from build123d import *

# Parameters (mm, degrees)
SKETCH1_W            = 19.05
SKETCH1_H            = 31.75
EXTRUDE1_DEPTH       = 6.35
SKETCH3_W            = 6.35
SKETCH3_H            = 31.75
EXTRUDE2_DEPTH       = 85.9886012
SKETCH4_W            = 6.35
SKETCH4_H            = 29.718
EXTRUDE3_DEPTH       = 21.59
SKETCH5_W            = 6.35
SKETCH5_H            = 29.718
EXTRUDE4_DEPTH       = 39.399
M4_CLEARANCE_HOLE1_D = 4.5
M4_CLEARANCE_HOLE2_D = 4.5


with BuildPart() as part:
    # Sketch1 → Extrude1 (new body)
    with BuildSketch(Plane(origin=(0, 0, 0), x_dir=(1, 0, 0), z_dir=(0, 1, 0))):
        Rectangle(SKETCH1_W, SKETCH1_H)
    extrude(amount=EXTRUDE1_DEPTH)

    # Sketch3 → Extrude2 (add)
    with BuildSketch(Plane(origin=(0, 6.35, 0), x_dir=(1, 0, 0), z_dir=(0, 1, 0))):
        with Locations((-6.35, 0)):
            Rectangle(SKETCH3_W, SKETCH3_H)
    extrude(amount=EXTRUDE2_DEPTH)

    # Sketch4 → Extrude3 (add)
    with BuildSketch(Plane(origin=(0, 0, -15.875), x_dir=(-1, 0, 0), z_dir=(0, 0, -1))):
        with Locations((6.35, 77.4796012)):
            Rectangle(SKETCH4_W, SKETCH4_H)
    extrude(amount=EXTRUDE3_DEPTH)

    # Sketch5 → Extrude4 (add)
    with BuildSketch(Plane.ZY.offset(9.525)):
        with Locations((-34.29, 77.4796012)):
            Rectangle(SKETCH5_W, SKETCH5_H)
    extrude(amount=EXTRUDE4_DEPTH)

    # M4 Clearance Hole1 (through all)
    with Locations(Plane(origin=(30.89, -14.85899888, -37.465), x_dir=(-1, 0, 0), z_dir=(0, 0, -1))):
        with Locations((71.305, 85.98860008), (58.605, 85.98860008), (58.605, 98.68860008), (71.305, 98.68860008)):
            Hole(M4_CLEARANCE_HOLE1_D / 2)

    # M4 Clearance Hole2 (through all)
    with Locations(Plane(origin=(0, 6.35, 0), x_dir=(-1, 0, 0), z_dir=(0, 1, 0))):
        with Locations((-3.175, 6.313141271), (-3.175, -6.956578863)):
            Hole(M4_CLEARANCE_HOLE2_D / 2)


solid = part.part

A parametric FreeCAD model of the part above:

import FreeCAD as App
import Part
import Sketcher
Q = App.Units.Quantity


def add_polygon(sketch, points):
    """Adds a closed chain of lines whose ends are joined by coincident constraints."""
    first, n = sketch.GeometryCount, len(points)
    for a, b in zip(points, points[1:] + points[:1]):
        sketch.addGeometry(Part.LineSegment(App.Vector(*a, 0), App.Vector(*b, 0)), False)
    for i in range(n):
        sketch.addConstraint(Sketcher.Constraint("Coincident", first + i, 2, first + (i + 1) % n, 1))

doc = App.newDocument("Part")
body = doc.addObject("PartDesign::Body", "Body")

# Sketch on XZ plane
sketch1 = body.newObject("Sketcher::SketchObject", "Sketch")
sketch1.AttachmentSupport = (doc.getObject("XZ_Plane"), [""])
sketch1.MapMode = "FlatFace"
add_polygon(sketch1, [(-9.525, -15.875), (-9.525, 15.875), (9.525, 15.875), (9.525, -15.875)])  # lines 0-3
sketch1.addConstraint([
    Sketcher.Constraint("Vertical", 0),
    Sketcher.Constraint("Horizontal", 1),
    Sketcher.Constraint("Vertical", 2),
    Sketcher.Constraint("Horizontal", 3),
    Sketcher.Constraint("Symmetric", 0, 2, 2, 2, -1, 1),
    Sketcher.Constraint("DistanceX", 1, 1, 1, 2, Q("0.75 in")),
    Sketcher.Constraint("DistanceY", 0, 1, 0, 2, Q("1.25 in")),
])
pad1 = body.newObject("PartDesign::Pad", "Pad")
pad1.Profile = sketch1
pad1.Length = Q("0.25 in")
pad1.Reversed = True

# Sketch on XZ plane
sketch2 = body.newObject("Sketcher::SketchObject", "Sketch001")
sketch2.AttachmentSupport = (doc.getObject("XZ_Plane"), [""])
sketch2.MapMode = "FlatFace"
sketch2.AttachmentOffset = App.Placement(App.Vector(0, 0, -0.25 * 25.4), App.Rotation())
add_polygon(sketch2, [(-9.525, -15.875), (-9.525, 15.875), (-3.175, 15.875), (-3.175, -15.875)])  # lines 0-3
sketch2.addConstraint([
    Sketcher.Constraint("Vertical", 0),
    Sketcher.Constraint("Horizontal", 1),
    Sketcher.Constraint("Vertical", 2),
    Sketcher.Constraint("Horizontal", 3),
    Sketcher.Constraint("DistanceX", 1, 1, 1, 2, Q("0.25 in")),
    Sketcher.Constraint("DistanceY", 0, 1, 0, 2, Q("1.25 in")),
    Sketcher.Constraint("DistanceX", 0, 2, -1, 1, Q("0.375 in")),
    Sketcher.Constraint("DistanceY", -1, 1, 0, 2, Q("0.625 in")),
])
pad2 = body.newObject("PartDesign::Pad", "Pad001")
pad2.Profile = sketch2
pad2.Length = 85.988601
pad2.Reversed = True

# Sketch on XY plane
sketch3 = body.newObject("Sketcher::SketchObject", "Sketch002")
sketch3.AttachmentSupport = (doc.getObject("XY_Plane"), [""])
sketch3.MapMode = "FlatFace"
sketch3.AttachmentOffset = App.Placement(App.Vector(0, 0, -0.625 * 25.4), App.Rotation())
add_polygon(sketch3, [(-3.175, 92.338601), (-3.175, 62.620601), (-9.525, 62.620601), (-9.525, 92.338601)])  # lines 0-3
sketch3.addConstraint([
    Sketcher.Constraint("Vertical", 0),
    Sketcher.Constraint("Horizontal", 1),
    Sketcher.Constraint("Vertical", 2),
    Sketcher.Constraint("Horizontal", 3),
    Sketcher.Constraint("DistanceX", 1, 2, 1, 1, Q("0.25 in")),
    Sketcher.Constraint("DistanceY", 0, 2, 0, 1, Q("1.17 in")),
    Sketcher.Constraint("DistanceX", 0, 2, -1, 1, Q("0.125 in")),
    Sketcher.Constraint("DistanceY", -1, 1, 0, 2, 62.620601),
])
pad3 = body.newObject("PartDesign::Pad", "Pad002")
pad3.Profile = sketch3
pad3.Length = Q("0.85 in")
pad3.Reversed = True

# Sketch on YZ plane
sketch4 = body.newObject("Sketcher::SketchObject", "Sketch003")
sketch4.AttachmentSupport = (doc.getObject("YZ_Plane"), [""])
sketch4.MapMode = "FlatFace"
sketch4.AttachmentOffset = App.Placement(App.Vector(0, 0, -0.375 * 25.4), App.Rotation())
add_polygon(sketch4, [(92.338601, -37.465), (62.620601, -37.465), (62.620601, -31.115), (92.338601, -31.115)])  # lines 0-3
sketch4.addConstraint([
    Sketcher.Constraint("Horizontal", 0),
    Sketcher.Constraint("Vertical", 1),
    Sketcher.Constraint("Horizontal", 2),
    Sketcher.Constraint("Vertical", 3),
    Sketcher.Constraint("DistanceX", 0, 2, 0, 1, Q("1.17 in")),
    Sketcher.Constraint("DistanceY", 1, 1, 1, 2, Q("0.25 in")),
    Sketcher.Constraint("DistanceY", 0, 2, -1, 1, Q("1.475 in")),
    Sketcher.Constraint("DistanceX", -1, 1, 0, 2, 62.620601),
])
pad4 = body.newObject("PartDesign::Pad", "Pad003")
pad4.Profile = sketch4
pad4.Length = 39.399
pad4.Reversed = True

# Sketch on XY plane
sketch5 = body.newObject("Sketcher::SketchObject", "Sketch004")
sketch5.AttachmentSupport = (doc.getObject("XY_Plane"), [""])
sketch5.MapMode = "FlatFace"
sketch5.AttachmentOffset = App.Placement(App.Vector(0, 0, -1.475 * 25.4), App.Rotation())
sketch5.addGeometry([
    Part.Circle(App.Vector(-40.415, 71.129601, 0), App.Vector(0, 0, 1), 2.25),
    Part.Circle(App.Vector(-27.715, 71.129601, 0), App.Vector(0, 0, 1), 2.25),
    Part.Circle(App.Vector(-27.715, 83.829601, 0), App.Vector(0, 0, 1), 2.25),
    Part.Circle(App.Vector(-40.415, 83.829601, 0), App.Vector(0, 0, 1), 2.25),
], False)
sketch5.addConstraint([
    Sketcher.Constraint("Equal", 0, 1),
    Sketcher.Constraint("Equal", 1, 2),
    Sketcher.Constraint("Equal", 2, 3),
    Sketcher.Constraint("Horizontal", 0, 3, 1, 3),
    Sketcher.Constraint("Horizontal", 2, 3, 3, 3),
    Sketcher.Constraint("Vertical", 1, 3, 2, 3),
    Sketcher.Constraint("Vertical", 0, 3, 3, 3),
    Sketcher.Constraint("DistanceX", 0, 3, 1, 3, Q("0.5 in")),
    Sketcher.Constraint("DistanceY", 1, 3, 2, 3, Q("0.5 in")),
    Sketcher.Constraint("Diameter", 0, 4.5),
    Sketcher.Constraint("DistanceX", 0, 3, -1, 1, 40.415),
    Sketcher.Constraint("DistanceY", -1, 1, 0, 3, 71.129601),
])
doc.recompute()
hole = body.newObject("PartDesign::Hole", "Hole")
hole.Profile = sketch5
hole.ThreadType = "None"
hole.Diameter = 4.5
hole.DepthType = "ThroughAll"
hole.Reversed = True

# Sketch on XZ plane
sketch6 = body.newObject("Sketcher::SketchObject", "Sketch005")
sketch6.AttachmentSupport = (doc.getObject("XZ_Plane"), [""])
sketch6.MapMode = "FlatFace"
sketch6.AttachmentOffset = App.Placement(App.Vector(0, 0, -0.25 * 25.4), App.Rotation())
sketch6.addGeometry([
    Part.Circle(App.Vector(3.175, 6.313141, 0), App.Vector(0, 0, 1), 2.25),
    Part.Circle(App.Vector(3.175, -6.956579, 0), App.Vector(0, 0, 1), 2.25),
], False)
sketch6.addConstraint([
    Sketcher.Constraint("Equal", 0, 1),
    Sketcher.Constraint("Vertical", 0, 3, 1, 3),
    Sketcher.Constraint("Diameter", 0, 4.5),
    Sketcher.Constraint("DistanceX", -1, 1, 0, 3, Q("0.125 in")),
    Sketcher.Constraint("DistanceY", -1, 1, 0, 3, 6.313141),
    Sketcher.Constraint("DistanceY", 1, 3, -1, 1, 6.956579),
])
doc.recompute()
hole2 = body.newObject("PartDesign::Hole", "Hole001")
hole2.Profile = sketch6
hole2.ThreadType = "None"
hole2.Diameter = 4.5
hole2.DepthType = "ThroughAll"
hole2.Reversed = True

doc.recompute()
